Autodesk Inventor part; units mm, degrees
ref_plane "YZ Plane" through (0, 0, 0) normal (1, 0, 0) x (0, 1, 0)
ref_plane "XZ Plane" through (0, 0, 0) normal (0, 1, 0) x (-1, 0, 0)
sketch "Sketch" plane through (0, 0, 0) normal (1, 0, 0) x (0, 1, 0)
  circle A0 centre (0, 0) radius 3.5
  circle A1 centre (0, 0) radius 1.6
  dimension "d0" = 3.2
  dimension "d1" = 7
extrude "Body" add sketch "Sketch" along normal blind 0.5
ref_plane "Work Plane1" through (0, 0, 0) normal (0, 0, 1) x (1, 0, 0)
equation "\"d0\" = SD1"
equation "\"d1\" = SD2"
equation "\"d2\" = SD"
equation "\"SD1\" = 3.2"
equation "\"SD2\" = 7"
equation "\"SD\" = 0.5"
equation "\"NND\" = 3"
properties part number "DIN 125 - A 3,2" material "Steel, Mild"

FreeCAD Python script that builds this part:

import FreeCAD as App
import Part
import Sketcher

V = App.Vector

doc = App.newDocument("Part")
body = doc.addObject("PartDesign::Body", "Body")

# Sketch on YZ plane
sketch1 = doc.addObject("Sketcher::SketchObject", "Sketch")
body.addObject(sketch1)
sketch1.AttachmentSupport = (doc.YZ_Plane, [""])
sketch1.MapMode = "FlatFace"
sketch1.addGeometry(Part.Circle(V(0, 0, 0), V(0, 0, 1), 3.5), False)
sketch1.addGeometry(Part.Circle(V(0, 0, 0), V(0, 0, 1), 1.6), False)
sketch1.addConstraint(Sketcher.Constraint("Coincident", 0, 3, -1, 1))
sketch1.addConstraint(Sketcher.Constraint("Coincident", 1, 3, -1, 1))
sketch1.addConstraint(Sketcher.Constraint("Diameter", 0, 7.0))
sketch1.addConstraint(Sketcher.Constraint("Diameter", 1, 3.2))
pad1 = doc.addObject("PartDesign::Pad", "Pad")
body.addObject(pad1)
pad1.Profile = sketch1
pad1.Length = 0.5

doc.recompute()
